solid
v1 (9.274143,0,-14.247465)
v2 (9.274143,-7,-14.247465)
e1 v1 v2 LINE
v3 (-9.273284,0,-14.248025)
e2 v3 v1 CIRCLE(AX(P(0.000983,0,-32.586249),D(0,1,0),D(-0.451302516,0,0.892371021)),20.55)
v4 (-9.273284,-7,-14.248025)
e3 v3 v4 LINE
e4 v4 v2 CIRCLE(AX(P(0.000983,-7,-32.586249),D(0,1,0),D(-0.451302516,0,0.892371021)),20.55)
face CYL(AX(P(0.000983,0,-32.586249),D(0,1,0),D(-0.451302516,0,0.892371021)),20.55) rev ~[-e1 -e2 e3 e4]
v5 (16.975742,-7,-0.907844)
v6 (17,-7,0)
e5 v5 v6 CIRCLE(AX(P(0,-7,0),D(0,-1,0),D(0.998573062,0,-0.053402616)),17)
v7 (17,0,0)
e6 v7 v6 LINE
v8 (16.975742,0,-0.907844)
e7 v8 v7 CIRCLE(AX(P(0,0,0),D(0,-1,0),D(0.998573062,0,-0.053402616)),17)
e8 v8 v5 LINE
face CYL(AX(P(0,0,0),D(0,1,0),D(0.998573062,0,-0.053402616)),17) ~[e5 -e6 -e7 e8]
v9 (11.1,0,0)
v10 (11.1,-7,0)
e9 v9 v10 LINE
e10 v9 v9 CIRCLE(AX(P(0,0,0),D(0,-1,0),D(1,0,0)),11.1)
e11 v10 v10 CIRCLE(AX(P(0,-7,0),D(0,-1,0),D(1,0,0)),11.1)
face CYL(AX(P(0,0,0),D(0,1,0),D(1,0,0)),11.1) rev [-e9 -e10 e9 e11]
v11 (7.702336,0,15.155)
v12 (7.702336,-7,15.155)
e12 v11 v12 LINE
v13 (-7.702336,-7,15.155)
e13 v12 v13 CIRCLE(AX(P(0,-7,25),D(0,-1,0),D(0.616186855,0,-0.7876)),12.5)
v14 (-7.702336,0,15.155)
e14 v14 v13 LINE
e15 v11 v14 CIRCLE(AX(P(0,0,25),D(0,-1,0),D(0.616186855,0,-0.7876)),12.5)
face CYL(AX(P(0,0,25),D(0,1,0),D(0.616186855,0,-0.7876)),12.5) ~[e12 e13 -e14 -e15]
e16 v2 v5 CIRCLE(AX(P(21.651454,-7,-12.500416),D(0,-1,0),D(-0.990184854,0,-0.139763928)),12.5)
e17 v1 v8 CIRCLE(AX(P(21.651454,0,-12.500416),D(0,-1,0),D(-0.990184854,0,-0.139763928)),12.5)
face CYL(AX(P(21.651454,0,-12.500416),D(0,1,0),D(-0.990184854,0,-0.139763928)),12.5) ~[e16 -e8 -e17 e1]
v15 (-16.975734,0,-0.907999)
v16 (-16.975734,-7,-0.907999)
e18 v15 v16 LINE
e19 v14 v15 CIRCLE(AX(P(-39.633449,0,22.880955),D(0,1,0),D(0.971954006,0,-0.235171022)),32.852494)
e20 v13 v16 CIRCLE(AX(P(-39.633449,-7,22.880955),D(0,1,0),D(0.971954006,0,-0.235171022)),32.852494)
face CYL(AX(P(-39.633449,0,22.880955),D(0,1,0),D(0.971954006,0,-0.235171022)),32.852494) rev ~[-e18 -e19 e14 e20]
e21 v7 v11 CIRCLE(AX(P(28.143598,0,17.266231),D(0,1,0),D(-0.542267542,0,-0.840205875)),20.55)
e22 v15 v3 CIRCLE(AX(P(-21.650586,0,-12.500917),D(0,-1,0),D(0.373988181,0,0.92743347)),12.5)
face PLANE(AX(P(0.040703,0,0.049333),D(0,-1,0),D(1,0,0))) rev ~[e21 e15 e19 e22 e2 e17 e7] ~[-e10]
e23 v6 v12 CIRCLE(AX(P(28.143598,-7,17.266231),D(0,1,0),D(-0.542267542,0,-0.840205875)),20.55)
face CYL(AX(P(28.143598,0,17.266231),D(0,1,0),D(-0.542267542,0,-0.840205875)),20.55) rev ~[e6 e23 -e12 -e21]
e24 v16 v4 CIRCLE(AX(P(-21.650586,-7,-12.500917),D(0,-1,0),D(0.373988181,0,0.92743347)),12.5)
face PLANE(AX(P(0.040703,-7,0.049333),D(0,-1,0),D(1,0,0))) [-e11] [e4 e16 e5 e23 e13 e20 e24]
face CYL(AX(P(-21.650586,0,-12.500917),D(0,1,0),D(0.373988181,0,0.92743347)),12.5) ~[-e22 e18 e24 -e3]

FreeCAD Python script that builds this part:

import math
import FreeCAD as App
import Part
import Sketcher
Q = App.Units.Quantity

doc = App.newDocument("Part")
body = doc.addObject("PartDesign::Body", "Body")

# Sketch on XZ plane
sketch1 = body.newObject("Sketcher::SketchObject", "Sketch")
sketch1.AttachmentSupport = (doc.getObject("XZ_Plane"), [""])
sketch1.MapMode = "FlatFace"
sketch1.addGeometry(Part.ArcOfCircle(Part.Circle(App.Vector(-39.633449, 22.880955, 0), App.Vector(0, 0, 1), 32.852494), math.radians(-46.3952), math.radians(-13.601704)), False)
sketch1.addGeometry(Part.ArcOfCircle(Part.Circle(App.Vector(-21.650586, -12.500917, 0), App.Vector(0, 0, 1), 12.5), math.radians(68.03821), math.radians(351.965543)), False)
sketch1.addGeometry(Part.ArcOfCircle(Part.Circle(App.Vector(0.000983, -32.586249, 0), App.Vector(0, 0, 1), 20.55), math.radians(63.176174), math.radians(116.827283)), False)
sketch1.addGeometry(Part.ArcOfCircle(Part.Circle(App.Vector(21.651454, -12.500416, 0), App.Vector(0, 0, 1), 12.5), math.radians(-171.965814), math.radians(111.966039)), False)
sketch1.addGeometry(Part.ArcOfCircle(Part.Circle(App.Vector(0, 0, 0), App.Vector(0, 0, 1), 17), math.radians(-3.061201), math.radians(0)), False)
sketch1.addGeometry(Part.ArcOfCircle(Part.Circle(App.Vector(28.143598, 17.266231, 0), App.Vector(0, 0, 1), 20.55), math.radians(-174.10324), math.radians(-122.838134)), False)
sketch1.addGeometry(Part.ArcOfCircle(Part.Circle(App.Vector(0, 25, 0), App.Vector(0, 0, 1), 12.5), math.radians(-51.96179), math.radians(231.96179)), False)
sketch1.addGeometry(Part.Circle(App.Vector(0, 0, 0), App.Vector(0, 0, 1), 11.1), False)
sketch1.addConstraint(Sketcher.Constraint("Coincident", 0, 1, 1, 1))
sketch1.addConstraint(Sketcher.Constraint("Coincident", 1, 2, 2, 2))
sketch1.addConstraint(Sketcher.Constraint("Coincident", 2, 1, 3, 1))
sketch1.addConstraint(Sketcher.Constraint("Coincident", 3, 2, 4, 1))
sketch1.addConstraint(Sketcher.Constraint("Coincident", 4, 2, 5, 2))
sketch1.addConstraint(Sketcher.Constraint("Coincident", 5, 1, 6, 1))
sketch1.addConstraint(Sketcher.Constraint("Coincident", 6, 2, 0, 2))
sketch1.addConstraint(Sketcher.Constraint("Coincident", 4, 3, -1, 1))
sketch1.addConstraint(Sketcher.Constraint("Coincident", 7, 3, -1, 1))
sketch1.addConstraint(Sketcher.Constraint("Equal", 1, 3))
sketch1.addConstraint(Sketcher.Constraint("Equal", 2, 5))
sketch1.addConstraint(Sketcher.Constraint("Equal", 3, 6))
sketch1.addConstraint(Sketcher.Constraint("Symmetric", 5, 1, 6, 2, -2))
sketch1.addConstraint(Sketcher.Constraint("PointOnObject", 4, 2, -1))
sketch1.addConstraint(Sketcher.Constraint("Radius", 4, Q("17 mm")))
sketch1.addConstraint(Sketcher.Constraint("Diameter", 7, Q("22.2 mm")))
sketch1.addConstraint(Sketcher.Constraint("Radius", 1, Q("12.5 mm")))
sketch1.addConstraint(Sketcher.Constraint("Radius", 2, Q("20.55 mm")))
sketch1.addConstraint(Sketcher.Constraint("DistanceY", -1, 1, 6, 3, Q("25 mm")))
sketch1.addConstraint(Sketcher.Constraint("DistanceY", 0, 1, -1, 1, Q("0.907999 mm")))
sketch1.addConstraint(Sketcher.Constraint("DistanceY", -1, 1, 5, 1, Q("15.155 mm")))
sketch1.addConstraint(Sketcher.Constraint("Radius", 0, Q("32.852494 mm")))
sketch1.addConstraint(Sketcher.Constraint("DistanceY", 1, 3, 3, 3, Q("0.000501 mm")))
sketch1.addConstraint(Sketcher.Constraint("DistanceX", 2, 1, 3, 2, Q("7.701599 mm")))
sketch1.addConstraint(Sketcher.Constraint("DistanceX", 0, 1, 6, 2, Q("9.273398 mm")))
sketch1.addConstraint(Sketcher.Constraint("DistanceY", 2, 3, -1, 1, Q("32.586249 mm")))
sketch1.addConstraint(Sketcher.Constraint("DistanceY", 1, 3, 0, 3, Q("35.381872 mm")))
sketch1.addConstraint(Sketcher.Constraint("DistanceX", 1, 3, 2, 3, Q("21.651569 mm")))
pad1 = body.newObject("PartDesign::Pad", "Pad")
pad1.Profile = sketch1
pad1.Length = 7

doc.recompute()
